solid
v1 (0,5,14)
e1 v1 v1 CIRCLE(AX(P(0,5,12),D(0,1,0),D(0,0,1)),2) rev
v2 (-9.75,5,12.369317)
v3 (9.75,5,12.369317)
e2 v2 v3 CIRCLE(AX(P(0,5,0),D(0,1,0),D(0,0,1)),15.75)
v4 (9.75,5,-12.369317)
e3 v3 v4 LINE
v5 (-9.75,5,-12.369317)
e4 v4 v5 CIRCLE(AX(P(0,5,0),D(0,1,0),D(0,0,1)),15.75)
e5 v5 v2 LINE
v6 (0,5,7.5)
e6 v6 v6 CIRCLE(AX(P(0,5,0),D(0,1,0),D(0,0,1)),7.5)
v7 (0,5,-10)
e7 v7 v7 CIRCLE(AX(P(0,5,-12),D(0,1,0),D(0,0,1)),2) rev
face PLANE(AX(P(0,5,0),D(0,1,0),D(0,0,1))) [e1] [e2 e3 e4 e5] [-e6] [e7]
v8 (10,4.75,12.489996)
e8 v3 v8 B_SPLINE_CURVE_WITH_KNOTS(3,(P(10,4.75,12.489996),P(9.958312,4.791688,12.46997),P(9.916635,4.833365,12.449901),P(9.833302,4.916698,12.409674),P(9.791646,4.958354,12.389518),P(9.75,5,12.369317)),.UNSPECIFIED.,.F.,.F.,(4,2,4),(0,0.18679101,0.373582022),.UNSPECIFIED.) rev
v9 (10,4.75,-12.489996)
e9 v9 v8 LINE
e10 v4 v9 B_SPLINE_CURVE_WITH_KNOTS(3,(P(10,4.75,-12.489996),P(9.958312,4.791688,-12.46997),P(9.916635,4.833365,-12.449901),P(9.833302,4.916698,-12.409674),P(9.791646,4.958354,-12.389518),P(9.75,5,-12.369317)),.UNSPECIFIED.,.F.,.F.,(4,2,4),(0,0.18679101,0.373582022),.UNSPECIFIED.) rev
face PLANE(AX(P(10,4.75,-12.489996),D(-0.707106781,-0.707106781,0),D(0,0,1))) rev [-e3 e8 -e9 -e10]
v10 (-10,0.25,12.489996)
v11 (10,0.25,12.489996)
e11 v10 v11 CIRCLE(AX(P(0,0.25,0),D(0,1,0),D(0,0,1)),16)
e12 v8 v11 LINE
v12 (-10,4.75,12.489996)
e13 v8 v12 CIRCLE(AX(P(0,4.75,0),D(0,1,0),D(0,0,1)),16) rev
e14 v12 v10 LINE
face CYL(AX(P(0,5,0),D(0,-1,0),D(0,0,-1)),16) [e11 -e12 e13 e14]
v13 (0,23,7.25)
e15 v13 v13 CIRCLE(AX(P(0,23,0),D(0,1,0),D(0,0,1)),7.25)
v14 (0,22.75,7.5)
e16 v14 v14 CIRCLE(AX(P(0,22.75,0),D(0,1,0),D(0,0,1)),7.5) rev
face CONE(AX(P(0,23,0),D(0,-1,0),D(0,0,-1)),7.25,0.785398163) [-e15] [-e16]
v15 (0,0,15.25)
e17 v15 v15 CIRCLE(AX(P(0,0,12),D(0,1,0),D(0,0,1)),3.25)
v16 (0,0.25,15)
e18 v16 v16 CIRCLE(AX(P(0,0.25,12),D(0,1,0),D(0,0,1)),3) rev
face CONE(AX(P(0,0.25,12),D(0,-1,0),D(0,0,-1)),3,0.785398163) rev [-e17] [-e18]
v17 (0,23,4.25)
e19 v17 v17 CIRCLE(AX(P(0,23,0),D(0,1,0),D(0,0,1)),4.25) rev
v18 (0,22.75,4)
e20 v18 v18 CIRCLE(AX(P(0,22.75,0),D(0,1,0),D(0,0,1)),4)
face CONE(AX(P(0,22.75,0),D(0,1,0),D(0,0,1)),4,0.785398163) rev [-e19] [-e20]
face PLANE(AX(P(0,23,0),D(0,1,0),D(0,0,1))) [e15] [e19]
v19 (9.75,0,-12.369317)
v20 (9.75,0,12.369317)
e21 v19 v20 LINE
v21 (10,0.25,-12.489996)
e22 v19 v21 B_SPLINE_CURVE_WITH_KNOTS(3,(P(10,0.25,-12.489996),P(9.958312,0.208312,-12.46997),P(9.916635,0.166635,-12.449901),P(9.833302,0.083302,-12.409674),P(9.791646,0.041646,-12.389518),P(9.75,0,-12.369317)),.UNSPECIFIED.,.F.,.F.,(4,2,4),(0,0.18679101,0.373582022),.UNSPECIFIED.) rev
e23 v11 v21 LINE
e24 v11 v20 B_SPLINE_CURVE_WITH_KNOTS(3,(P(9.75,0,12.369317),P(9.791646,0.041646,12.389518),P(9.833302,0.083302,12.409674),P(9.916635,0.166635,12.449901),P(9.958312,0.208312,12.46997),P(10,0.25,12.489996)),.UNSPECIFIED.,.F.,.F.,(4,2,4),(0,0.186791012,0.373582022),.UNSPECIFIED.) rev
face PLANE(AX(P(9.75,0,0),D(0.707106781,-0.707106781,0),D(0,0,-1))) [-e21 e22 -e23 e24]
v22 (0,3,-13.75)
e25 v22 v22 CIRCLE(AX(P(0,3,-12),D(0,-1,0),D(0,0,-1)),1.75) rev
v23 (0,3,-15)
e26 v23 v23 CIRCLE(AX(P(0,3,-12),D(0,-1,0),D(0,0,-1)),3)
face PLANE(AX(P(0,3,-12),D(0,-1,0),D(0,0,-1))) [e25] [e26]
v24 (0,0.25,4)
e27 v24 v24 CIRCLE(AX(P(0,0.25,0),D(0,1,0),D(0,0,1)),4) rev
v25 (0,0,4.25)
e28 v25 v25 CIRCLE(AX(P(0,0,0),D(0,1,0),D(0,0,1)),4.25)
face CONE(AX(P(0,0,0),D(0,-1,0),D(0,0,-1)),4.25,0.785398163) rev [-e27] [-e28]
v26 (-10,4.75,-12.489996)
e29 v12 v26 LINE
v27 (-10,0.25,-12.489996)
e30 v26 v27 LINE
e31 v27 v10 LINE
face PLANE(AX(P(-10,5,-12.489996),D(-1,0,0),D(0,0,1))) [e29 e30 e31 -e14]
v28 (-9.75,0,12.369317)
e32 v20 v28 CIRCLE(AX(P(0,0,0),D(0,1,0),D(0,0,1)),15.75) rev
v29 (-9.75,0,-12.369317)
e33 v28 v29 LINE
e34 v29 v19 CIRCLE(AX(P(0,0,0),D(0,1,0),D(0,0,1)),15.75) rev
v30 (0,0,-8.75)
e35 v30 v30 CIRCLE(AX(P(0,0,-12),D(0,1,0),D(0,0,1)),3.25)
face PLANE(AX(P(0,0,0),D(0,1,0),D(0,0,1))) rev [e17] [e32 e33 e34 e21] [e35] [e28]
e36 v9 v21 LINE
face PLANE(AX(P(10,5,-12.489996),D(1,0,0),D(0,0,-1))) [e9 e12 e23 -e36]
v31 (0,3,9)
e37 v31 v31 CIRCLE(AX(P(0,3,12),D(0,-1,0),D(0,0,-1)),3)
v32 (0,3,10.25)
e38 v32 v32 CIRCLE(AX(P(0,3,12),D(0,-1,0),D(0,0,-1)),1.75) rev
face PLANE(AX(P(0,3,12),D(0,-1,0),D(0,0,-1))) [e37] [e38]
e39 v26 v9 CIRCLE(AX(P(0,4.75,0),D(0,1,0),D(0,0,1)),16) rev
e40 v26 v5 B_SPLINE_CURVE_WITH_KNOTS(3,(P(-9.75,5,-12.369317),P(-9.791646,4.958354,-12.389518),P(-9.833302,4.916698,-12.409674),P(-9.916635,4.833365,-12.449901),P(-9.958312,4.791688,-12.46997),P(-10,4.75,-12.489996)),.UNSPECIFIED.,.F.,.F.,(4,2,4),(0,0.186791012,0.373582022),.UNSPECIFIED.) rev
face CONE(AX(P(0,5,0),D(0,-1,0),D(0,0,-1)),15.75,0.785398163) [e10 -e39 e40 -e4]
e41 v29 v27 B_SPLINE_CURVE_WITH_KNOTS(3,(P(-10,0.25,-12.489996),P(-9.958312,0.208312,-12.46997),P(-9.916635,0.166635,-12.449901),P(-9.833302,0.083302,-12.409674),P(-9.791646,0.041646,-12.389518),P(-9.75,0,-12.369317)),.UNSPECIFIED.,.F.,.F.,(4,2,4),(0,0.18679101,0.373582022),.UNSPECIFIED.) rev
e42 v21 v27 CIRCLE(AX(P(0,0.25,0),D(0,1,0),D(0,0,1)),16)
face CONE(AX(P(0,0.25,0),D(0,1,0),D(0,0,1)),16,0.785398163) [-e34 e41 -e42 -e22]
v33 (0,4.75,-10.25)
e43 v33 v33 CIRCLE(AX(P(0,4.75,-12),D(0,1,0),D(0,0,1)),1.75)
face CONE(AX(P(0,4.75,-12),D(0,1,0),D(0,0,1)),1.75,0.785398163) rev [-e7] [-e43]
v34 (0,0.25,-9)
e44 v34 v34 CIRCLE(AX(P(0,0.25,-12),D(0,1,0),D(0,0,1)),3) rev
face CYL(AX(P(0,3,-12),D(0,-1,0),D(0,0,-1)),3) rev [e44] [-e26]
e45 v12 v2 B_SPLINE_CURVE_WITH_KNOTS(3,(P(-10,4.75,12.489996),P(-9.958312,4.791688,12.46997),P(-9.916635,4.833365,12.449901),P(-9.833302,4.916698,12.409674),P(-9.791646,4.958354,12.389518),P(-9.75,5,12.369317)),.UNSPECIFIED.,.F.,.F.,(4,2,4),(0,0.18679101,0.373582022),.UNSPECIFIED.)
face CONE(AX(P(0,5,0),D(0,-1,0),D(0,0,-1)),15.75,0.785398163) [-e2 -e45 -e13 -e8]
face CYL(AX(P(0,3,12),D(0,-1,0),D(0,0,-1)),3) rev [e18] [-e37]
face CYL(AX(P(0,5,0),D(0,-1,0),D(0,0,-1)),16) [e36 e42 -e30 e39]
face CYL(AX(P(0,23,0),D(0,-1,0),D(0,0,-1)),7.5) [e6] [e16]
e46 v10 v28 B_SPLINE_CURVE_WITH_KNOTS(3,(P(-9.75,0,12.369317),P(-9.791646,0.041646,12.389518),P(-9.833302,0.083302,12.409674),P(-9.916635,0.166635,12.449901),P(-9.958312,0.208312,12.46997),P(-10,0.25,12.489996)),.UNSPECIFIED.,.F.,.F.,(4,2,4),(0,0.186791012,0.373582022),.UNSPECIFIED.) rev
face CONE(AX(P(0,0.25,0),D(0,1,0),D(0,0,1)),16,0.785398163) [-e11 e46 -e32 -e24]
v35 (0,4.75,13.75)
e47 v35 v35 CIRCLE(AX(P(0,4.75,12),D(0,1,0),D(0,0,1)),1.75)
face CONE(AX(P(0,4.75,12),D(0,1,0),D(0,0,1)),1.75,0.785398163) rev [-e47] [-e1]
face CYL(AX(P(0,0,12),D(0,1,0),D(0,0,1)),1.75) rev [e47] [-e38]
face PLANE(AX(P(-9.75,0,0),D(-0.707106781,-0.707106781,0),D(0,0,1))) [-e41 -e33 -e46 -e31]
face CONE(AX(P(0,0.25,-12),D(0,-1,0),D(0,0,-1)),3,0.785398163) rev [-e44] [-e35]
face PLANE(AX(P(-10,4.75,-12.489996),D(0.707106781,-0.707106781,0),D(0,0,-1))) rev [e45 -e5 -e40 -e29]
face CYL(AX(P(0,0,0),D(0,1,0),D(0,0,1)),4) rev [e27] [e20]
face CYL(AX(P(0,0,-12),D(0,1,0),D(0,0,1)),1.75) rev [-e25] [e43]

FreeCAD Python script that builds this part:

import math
import FreeCAD as App
import Part
import Sketcher


def edges_at(feature, points):
    """Names of the edges that pass closest to the given points."""
    edges = feature.Shape.Edges
    near = lambda p: min(range(len(edges)), key=lambda i: edges[i].distToShape(Part.Vertex(*p))[0])
    return sorted({f"Edge{near(p) + 1}" for p in points})

doc = App.newDocument("Part")
params = doc.addObject("Spreadsheet::Sheet", "Params")
for row, (alias, value) in enumerate([
    ("sketch1_diameter", "32 mm"),
    ("pad1_length", "5 mm"),
    ("sketch2_radius", "16 mm"),
    ("pocket1_length", "5 mm"),
    ("sketch3_diameter", "15 mm"),
    ("pad2_length", "18 mm"),
    ("sketch4_diameter", "8 mm"),
    ("pocket2_length", "23 mm"),
    ("sketch5_diameter", "3.5 mm"),
    ("pocket3_length", "5 mm"),
    ("sketch6_diameter", "6 mm"),
    ("pocket4_length", "3 mm"),
    ("chamfer_size", "0.25 mm"),
], start=1):
    params.set(f"A{row}", alias)
    params.set(f"B{row}", "=" + value)
    params.setAlias(f"B{row}", alias)

body = doc.addObject("PartDesign::Body", "Body")

sketch1 = body.newObject("Sketcher::SketchObject", "Sketch")
sketch1.AttachmentSupport = (doc.getObject("XZ_Plane"), [""])
sketch1.MapMode = "FlatFace"
sketch1.addGeometry(Part.Circle(App.Vector(0, 0, 0), App.Vector(0, 0, 1), 16), False)
sketch1.addConstraint(Sketcher.Constraint("Coincident", 0, 3, -1, 1))
sketch1.addConstraint(Sketcher.Constraint("Diameter", 0, 32.0))
sketch1.setExpression("Constraints[1]", "Params.sketch1_diameter")
pad1 = body.newObject("PartDesign::Pad", "Pad")
pad1.Profile = sketch1
pad1.setExpression("Length", "Params.pad1_length")
pad1.Reversed = True

sketch2 = body.newObject("Sketcher::SketchObject", "Sketch001")
sketch2.AttachmentSupport = (doc.getObject("XZ_Plane"), [""])
sketch2.MapMode = "FlatFace"
sketch2.addGeometry(Part.LineSegment(App.Vector(-10, 12, 0), App.Vector(-10, -12, 0)), False)
sketch2.addGeometry(Part.ArcOfCircle(Part.Circle(App.Vector(0, 0, 0), App.Vector(0, 0, 1), 16), math.radians(129), math.radians(231)), False)
sketch2.addGeometry(Part.LineSegment(App.Vector(10, -12, 0), App.Vector(10, 12, 0)), False)
sketch2.addGeometry(Part.ArcOfCircle(Part.Circle(App.Vector(0, 0, 0), App.Vector(0, 0, 1), 16), math.radians(-51), math.radians(51)), False)
sketch2.addConstraint(Sketcher.Constraint("Coincident", 0, 1, 1, 1))
sketch2.addConstraint(Sketcher.Constraint("Coincident", 1, 2, 0, 2))
sketch2.addConstraint(Sketcher.Constraint("Coincident", 2, 1, 3, 1))
sketch2.addConstraint(Sketcher.Constraint("Coincident", 3, 2, 2, 2))
sketch2.addConstraint(Sketcher.Constraint("Vertical", 0))
sketch2.addConstraint(Sketcher.Constraint("Vertical", 2))
sketch2.addConstraint(Sketcher.Constraint("Coincident", 1, 3, -1, 1))
sketch2.addConstraint(Sketcher.Constraint("Coincident", 3, 3, -1, 1))
sketch2.addConstraint(Sketcher.Constraint("Equal", 1, 3))
sketch2.addConstraint(Sketcher.Constraint("Horizontal", 1, 2, 2, 1))
sketch2.addConstraint(Sketcher.Constraint("Radius", 1, 16.0))
sketch2.addConstraint(Sketcher.Constraint("DistanceX", 0, 1, -1, 1, 10.0))
sketch2.setExpression("Constraints[10]", "Params.sketch2_radius")
pocket1 = body.newObject("PartDesign::Pocket", "Pocket")
pocket1.Profile = sketch2
pocket1.setExpression("Length", "Params.pocket1_length")

sketch3 = body.newObject("Sketcher::SketchObject", "Sketch002")
sketch3.AttachmentSupport = (doc.getObject("XZ_Plane"), [""])
sketch3.MapMode = "FlatFace"
sketch3.AttachmentOffset = App.Placement(App.Vector(0, 0, -5), App.Rotation())
sketch3.addGeometry(Part.Circle(App.Vector(0, 0, 0), App.Vector(0, 0, 1), 8), False)
sketch3.addConstraint(Sketcher.Constraint("Coincident", 0, 3, -1, 1))
sketch3.addConstraint(Sketcher.Constraint("Diameter", 0, 15.0))
sketch3.setExpression("Constraints[1]", "Params.sketch3_diameter")
pad2 = body.newObject("PartDesign::Pad", "Pad001")
pad2.Profile = sketch3
pad2.setExpression("Length", "Params.pad2_length")
pad2.Reversed = True

sketch4 = body.newObject("Sketcher::SketchObject", "Sketch003")
sketch4.AttachmentSupport = (doc.getObject("XZ_Plane"), [""])
sketch4.MapMode = "FlatFace"
sketch4.AttachmentOffset = App.Placement(App.Vector(0, 0, -23), App.Rotation())
sketch4.addGeometry(Part.Circle(App.Vector(0, 0, 0), App.Vector(0, 0, 1), 4), False)
sketch4.addConstraint(Sketcher.Constraint("Coincident", 0, 3, -1, 1))
sketch4.addConstraint(Sketcher.Constraint("Diameter", 0, 8.0))
sketch4.setExpression("Constraints[1]", "Params.sketch4_diameter")
pocket2 = body.newObject("PartDesign::Pocket", "Pocket001")
pocket2.Profile = sketch4
pocket2.setExpression("Length", "Params.pocket2_length")
pocket2.Reversed = True

sketch5 = body.newObject("Sketcher::SketchObject", "Sketch004")
sketch5.AttachmentSupport = (doc.getObject("XZ_Plane"), [""])
sketch5.MapMode = "FlatFace"
sketch5.AttachmentOffset = App.Placement(App.Vector(0, 0, -5), App.Rotation())
sketch5.addGeometry(Part.Circle(App.Vector(0, -12, 0), App.Vector(0, 0, 1), 1.8), False)
sketch5.addGeometry(Part.Circle(App.Vector(0, 12, 0), App.Vector(0, 0, 1), 1.8), False)
sketch5.addConstraint(Sketcher.Constraint("Equal", 0, 1))
sketch5.addConstraint(Sketcher.Constraint("Symmetric", 0, 3, 1, 3, -1, 1))
sketch5.addConstraint(Sketcher.Constraint("PointOnObject", 0, 3, -2))
sketch5.addConstraint(Sketcher.Constraint("Diameter", 0, 3.5))
sketch5.addConstraint(Sketcher.Constraint("DistanceY", 0, 3, -1, 1, 12.0))
sketch5.setExpression("Constraints[3]", "Params.sketch5_diameter")
pocket3 = body.newObject("PartDesign::Pocket", "Pocket002")
pocket3.Profile = sketch5
pocket3.setExpression("Length", "Params.pocket3_length")
pocket3.Reversed = True

sketch6 = body.newObject("Sketcher::SketchObject", "Sketch005")
sketch6.AttachmentSupport = (doc.getObject("XZ_Plane"), [""])
sketch6.MapMode = "FlatFace"
sketch6.addGeometry(Part.Circle(App.Vector(0, 12, 0), App.Vector(0, 0, 1), 3), False)
sketch6.addGeometry(Part.Circle(App.Vector(0, -12, 0), App.Vector(0, 0, 1), 3), False)
sketch6.addConstraint(Sketcher.Constraint("Equal", 0, 1))
sketch6.addConstraint(Sketcher.Constraint("Symmetric", 0, 3, 1, 3, -1, 1))
sketch6.addConstraint(Sketcher.Constraint("PointOnObject", 0, 3, -2))
sketch6.addConstraint(Sketcher.Constraint("Diameter", 0, 6.0))
sketch6.addConstraint(Sketcher.Constraint("DistanceY", -1, 1, 0, 3, 12.0))
sketch6.setExpression("Constraints[3]", "Params.sketch6_diameter")
pocket4 = body.newObject("PartDesign::Pocket", "Pocket003")
pocket4.Profile = sketch6
pocket4.setExpression("Length", "Params.pocket4_length")
doc.recompute()

chamfer = body.newObject("PartDesign::Chamfer", "Chamfer")
chamfer.Base = (pocket4, edges_at(pocket4, [
    (0, 0, -16),
    (0, 5, -16),
    (10, 0, 0),
    (10, 5, 0),
    (0, 23, -7.5),
    (0, 0, -4),
    (0, 23, -4),
    (0, 5, -13.75),
    (0, 5, 10.25),
    (0, 0, 15),
    (0, 0, -9),
    (0, 0, 16),
    (0, 5, 16),
    (-10, 0, 0),
    (-10, 5, 0),
]))
chamfer.setExpression("Size", "Params.chamfer_size")

doc.recompute()
